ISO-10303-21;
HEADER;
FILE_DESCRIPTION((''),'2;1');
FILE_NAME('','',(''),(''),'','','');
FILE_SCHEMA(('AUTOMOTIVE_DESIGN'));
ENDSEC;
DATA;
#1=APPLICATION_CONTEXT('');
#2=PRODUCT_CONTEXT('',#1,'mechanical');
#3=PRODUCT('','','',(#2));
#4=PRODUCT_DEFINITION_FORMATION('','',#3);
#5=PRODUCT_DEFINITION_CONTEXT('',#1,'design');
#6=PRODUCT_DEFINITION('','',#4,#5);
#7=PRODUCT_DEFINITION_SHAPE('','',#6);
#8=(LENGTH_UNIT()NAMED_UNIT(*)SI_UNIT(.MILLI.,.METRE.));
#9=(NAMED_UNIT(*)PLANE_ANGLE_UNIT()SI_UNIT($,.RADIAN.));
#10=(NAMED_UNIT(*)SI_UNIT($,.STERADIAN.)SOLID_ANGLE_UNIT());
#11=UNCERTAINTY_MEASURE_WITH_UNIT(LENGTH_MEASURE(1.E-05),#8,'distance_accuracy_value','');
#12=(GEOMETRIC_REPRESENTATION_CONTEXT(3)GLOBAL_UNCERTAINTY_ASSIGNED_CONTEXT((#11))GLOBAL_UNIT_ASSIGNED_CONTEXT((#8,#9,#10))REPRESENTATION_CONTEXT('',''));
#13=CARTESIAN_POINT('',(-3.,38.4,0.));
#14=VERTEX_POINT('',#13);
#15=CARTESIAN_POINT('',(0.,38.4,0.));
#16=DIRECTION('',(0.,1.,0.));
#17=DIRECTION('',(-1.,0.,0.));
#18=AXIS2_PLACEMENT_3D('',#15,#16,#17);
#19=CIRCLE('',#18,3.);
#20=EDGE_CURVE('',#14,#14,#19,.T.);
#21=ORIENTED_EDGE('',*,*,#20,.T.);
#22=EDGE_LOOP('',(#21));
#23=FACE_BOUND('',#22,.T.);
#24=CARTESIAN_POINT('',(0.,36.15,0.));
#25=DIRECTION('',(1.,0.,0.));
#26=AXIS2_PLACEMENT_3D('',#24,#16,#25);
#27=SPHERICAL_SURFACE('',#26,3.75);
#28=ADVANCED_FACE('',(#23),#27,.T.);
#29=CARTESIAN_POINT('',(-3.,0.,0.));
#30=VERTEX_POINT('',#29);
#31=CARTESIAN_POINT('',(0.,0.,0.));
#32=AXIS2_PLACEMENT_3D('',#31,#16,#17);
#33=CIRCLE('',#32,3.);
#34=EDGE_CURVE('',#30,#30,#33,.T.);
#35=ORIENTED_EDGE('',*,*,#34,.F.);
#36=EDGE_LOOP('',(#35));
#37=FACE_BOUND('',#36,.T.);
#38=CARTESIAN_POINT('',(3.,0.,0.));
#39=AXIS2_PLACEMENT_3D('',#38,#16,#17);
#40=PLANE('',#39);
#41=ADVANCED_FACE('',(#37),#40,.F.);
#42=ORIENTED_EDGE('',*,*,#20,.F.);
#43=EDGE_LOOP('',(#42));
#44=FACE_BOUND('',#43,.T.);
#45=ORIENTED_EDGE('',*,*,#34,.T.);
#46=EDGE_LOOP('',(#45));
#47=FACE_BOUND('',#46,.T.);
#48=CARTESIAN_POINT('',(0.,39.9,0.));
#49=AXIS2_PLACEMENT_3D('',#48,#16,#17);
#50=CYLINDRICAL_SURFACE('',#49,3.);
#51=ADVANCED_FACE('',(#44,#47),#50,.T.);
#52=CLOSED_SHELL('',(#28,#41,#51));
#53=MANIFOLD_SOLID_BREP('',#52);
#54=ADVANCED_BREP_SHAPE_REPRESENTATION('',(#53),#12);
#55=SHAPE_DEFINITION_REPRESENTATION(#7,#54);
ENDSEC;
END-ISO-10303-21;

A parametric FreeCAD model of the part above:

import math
import FreeCAD as App
import Part
import Sketcher

V = App.Vector

doc = App.newDocument("Part")
params = doc.addObject("Spreadsheet::Sheet", "Params")
for row, (alias, value) in enumerate([
    ("sketch1_width", "3 mm"),
    ("sketch1_radius", "3.75 mm"),
    ("sketch1_height", "38.4 mm"),
    ("revolution_angle", "360 deg"),
], start=1):
    params.set(f"A{row}", alias)
    params.set(f"B{row}", "=" + value)
    params.setAlias(f"B{row}", alias)

body = doc.addObject("PartDesign::Body", "Body")

sketch1 = body.newObject("Sketcher::SketchObject", "Sketch")
sketch1.AttachmentSupport = (doc.getObject("XY_Plane"), [""])
sketch1.MapMode = "FlatFace"
sketch1.addGeometry(Part.LineSegment(V(3, 0, 0), V(3, 38.4, 0)), False)
sketch1.addGeometry(Part.ArcOfCircle(Part.Circle(V(0, 36.1, 0), V(0, 0, 1), 3.8), math.radians(37), math.radians(90)), False)
sketch1.addGeometry(Part.LineSegment(V(0, 39.9, 0), V(0, 0, 0)), False)
sketch1.addGeometry(Part.LineSegment(V(0, 0, 0), V(3, 0, 0)), False)
sketch1.addConstraint(Sketcher.Constraint("Coincident", 0, 2, 1, 1))
sketch1.addConstraint(Sketcher.Constraint("Coincident", 1, 2, 2, 1))
sketch1.addConstraint(Sketcher.Constraint("Coincident", 2, 2, 3, 1))
sketch1.addConstraint(Sketcher.Constraint("Coincident", 3, 2, 0, 1))
sketch1.addConstraint(Sketcher.Constraint("Vertical", 0))
sketch1.addConstraint(Sketcher.Constraint("Vertical", 2))
sketch1.addConstraint(Sketcher.Constraint("Horizontal", 3))
sketch1.addConstraint(Sketcher.Constraint("Coincident", 2, 2, -1, 1))
sketch1.addConstraint(Sketcher.Constraint("PointOnObject", 1, 3, -2))
sketch1.addConstraint(Sketcher.Constraint("DistanceX", 3, 1, 3, 2, 3.0))
sketch1.addConstraint(Sketcher.Constraint("Radius", 1, 3.75))
sketch1.addConstraint(Sketcher.Constraint("DistanceY", 0, 1, 0, 2, 38.4))
sketch1.setExpression("Constraints[9]", "Params.sketch1_width")
sketch1.setExpression("Constraints[10]", "Params.sketch1_radius")
sketch1.setExpression("Constraints[11]", "Params.sketch1_height")
revolution = body.newObject("PartDesign::Revolution", "Revolution")
revolution.Profile = sketch1
revolution.ReferenceAxis = (sketch1, ["V_Axis"])
revolution.setExpression("Angle", "Params.revolution_angle")

doc.recompute()
